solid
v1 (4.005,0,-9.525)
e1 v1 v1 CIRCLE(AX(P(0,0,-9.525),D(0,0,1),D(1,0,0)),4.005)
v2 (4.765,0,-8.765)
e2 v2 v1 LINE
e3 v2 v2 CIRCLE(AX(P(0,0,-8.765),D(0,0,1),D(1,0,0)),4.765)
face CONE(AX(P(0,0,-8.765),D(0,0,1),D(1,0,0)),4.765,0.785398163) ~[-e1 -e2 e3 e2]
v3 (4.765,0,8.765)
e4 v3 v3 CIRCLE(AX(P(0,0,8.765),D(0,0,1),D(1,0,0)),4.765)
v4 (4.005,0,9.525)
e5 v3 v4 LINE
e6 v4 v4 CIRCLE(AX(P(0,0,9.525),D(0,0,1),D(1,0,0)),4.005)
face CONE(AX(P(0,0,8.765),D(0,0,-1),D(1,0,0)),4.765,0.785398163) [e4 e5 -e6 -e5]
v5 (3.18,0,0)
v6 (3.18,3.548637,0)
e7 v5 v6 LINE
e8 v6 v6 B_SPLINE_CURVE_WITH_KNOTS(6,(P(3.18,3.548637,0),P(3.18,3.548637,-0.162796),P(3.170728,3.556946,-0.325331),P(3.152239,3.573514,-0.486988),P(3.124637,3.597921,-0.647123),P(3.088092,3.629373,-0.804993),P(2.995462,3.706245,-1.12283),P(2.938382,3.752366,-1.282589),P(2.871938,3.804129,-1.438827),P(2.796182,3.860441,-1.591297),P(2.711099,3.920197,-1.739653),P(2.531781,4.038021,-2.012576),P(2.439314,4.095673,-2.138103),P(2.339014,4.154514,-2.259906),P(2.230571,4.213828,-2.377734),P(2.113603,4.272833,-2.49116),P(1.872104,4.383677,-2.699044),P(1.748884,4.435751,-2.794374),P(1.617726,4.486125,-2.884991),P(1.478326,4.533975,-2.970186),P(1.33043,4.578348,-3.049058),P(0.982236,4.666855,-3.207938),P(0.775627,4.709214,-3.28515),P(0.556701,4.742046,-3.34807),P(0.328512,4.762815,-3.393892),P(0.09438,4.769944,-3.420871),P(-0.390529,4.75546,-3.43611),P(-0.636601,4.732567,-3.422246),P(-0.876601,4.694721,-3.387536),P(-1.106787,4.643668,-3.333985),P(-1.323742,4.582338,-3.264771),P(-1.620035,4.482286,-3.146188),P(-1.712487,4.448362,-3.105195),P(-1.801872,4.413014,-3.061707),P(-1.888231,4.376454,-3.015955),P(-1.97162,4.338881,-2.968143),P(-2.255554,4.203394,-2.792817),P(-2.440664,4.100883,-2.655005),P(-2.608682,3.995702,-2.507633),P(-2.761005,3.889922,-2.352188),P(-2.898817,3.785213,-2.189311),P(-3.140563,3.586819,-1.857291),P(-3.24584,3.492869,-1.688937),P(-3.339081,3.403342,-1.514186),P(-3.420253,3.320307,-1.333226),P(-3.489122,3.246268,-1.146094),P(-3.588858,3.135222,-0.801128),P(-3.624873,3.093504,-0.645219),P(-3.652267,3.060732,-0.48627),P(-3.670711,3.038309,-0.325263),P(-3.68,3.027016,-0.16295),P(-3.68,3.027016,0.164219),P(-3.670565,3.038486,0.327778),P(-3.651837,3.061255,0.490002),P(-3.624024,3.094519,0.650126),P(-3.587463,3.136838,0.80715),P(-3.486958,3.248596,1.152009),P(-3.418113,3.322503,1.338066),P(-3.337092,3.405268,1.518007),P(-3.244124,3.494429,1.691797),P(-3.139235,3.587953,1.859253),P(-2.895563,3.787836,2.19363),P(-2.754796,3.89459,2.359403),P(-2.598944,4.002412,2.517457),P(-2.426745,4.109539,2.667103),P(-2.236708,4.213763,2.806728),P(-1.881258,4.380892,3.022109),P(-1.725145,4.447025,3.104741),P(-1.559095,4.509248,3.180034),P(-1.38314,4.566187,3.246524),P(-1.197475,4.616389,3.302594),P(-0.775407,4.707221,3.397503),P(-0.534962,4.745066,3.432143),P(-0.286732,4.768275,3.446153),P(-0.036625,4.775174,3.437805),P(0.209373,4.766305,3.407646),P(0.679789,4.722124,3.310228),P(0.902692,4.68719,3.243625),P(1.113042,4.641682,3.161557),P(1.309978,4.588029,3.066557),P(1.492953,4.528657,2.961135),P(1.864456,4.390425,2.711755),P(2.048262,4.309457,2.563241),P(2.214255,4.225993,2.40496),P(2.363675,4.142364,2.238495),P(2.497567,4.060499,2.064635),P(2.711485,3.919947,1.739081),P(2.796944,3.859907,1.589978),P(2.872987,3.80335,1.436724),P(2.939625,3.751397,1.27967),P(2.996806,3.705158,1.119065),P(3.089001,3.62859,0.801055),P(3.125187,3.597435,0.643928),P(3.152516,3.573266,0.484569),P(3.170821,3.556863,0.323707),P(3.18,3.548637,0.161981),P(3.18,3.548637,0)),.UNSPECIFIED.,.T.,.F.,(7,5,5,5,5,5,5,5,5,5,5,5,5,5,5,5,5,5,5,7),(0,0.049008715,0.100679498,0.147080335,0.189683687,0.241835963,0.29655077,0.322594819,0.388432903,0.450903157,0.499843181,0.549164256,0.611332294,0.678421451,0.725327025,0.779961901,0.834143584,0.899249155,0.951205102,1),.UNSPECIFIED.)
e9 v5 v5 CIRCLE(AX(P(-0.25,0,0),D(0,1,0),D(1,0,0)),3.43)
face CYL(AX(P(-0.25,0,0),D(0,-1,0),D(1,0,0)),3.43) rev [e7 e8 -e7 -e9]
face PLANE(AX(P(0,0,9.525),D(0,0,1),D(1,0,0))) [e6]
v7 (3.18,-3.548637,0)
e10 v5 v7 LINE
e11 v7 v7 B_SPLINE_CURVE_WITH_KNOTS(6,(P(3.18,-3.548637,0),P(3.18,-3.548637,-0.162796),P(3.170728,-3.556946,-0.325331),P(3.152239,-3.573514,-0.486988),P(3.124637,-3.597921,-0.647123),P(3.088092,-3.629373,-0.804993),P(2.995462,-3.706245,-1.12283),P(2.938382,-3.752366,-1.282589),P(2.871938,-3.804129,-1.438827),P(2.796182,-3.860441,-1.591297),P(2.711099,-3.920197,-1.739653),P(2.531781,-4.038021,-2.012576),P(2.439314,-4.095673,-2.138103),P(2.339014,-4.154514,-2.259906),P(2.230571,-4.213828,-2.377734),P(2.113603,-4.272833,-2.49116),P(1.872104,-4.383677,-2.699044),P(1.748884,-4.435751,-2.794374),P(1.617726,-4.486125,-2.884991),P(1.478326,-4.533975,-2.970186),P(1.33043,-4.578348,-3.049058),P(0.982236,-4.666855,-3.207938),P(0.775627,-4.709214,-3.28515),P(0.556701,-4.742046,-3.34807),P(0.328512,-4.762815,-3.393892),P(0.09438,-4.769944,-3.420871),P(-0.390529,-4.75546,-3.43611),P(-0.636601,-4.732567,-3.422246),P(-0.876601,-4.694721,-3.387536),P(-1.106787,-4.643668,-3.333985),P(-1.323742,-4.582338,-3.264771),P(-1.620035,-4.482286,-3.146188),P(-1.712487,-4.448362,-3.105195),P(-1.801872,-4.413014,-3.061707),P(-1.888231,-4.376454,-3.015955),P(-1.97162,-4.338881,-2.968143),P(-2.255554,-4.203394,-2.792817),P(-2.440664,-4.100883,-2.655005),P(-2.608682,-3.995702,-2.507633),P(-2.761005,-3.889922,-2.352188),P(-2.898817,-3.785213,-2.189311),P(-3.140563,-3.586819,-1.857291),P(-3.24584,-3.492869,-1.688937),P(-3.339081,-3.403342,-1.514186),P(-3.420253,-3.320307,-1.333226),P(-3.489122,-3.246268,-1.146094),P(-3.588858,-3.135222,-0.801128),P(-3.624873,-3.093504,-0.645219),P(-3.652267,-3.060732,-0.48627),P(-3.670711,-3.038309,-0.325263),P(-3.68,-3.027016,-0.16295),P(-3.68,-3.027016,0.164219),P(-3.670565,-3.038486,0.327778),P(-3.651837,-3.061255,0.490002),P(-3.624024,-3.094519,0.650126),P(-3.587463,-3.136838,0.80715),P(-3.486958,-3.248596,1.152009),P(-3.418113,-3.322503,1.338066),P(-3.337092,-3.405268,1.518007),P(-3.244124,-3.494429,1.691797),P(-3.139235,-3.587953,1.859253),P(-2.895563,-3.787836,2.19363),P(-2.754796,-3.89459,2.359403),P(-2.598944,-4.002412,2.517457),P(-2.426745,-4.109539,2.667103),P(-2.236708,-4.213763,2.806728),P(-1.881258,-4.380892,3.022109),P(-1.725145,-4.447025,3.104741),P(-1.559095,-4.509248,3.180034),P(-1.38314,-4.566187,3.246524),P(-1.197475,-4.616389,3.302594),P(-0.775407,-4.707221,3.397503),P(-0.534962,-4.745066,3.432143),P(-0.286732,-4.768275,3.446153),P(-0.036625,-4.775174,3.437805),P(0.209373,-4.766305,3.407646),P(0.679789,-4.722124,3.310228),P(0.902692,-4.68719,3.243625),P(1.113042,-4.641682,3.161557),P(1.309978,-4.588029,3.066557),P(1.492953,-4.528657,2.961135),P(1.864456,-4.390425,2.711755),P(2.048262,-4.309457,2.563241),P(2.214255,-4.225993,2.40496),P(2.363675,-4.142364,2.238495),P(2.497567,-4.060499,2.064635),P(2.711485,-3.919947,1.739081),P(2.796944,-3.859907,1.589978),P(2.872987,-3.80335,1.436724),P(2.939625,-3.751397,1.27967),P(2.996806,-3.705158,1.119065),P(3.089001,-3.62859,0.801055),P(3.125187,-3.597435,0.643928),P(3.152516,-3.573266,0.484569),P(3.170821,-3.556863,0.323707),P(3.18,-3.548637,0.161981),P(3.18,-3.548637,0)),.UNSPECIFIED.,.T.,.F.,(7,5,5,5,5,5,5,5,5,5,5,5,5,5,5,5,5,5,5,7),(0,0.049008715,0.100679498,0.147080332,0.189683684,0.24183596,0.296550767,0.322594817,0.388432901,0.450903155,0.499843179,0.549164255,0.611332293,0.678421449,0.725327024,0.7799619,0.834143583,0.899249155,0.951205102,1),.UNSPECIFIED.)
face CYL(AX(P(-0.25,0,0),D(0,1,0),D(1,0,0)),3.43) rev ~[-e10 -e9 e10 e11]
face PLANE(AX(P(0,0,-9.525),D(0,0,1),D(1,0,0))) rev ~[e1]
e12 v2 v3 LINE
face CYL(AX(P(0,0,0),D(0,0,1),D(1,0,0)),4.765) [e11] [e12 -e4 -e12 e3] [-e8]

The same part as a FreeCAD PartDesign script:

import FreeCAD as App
import Part
import Sketcher
Q = App.Units.Quantity


def edges_at(feature, points):
    """Names of the edges that pass closest to the given points."""
    edges = feature.Shape.Edges
    near = lambda p: min(range(len(edges)), key=lambda i: edges[i].distToShape(Part.Vertex(*p))[0])
    return sorted({f"Edge{near(p) + 1}" for p in points})

doc = App.newDocument("Part")
body = doc.addObject("PartDesign::Body", "Body")

# Sketch on XY plane
sketch1 = doc.addObject("Sketcher::SketchObject", "Sketch")
body.addObject(sketch1)
sketch1.AttachmentSupport = (doc.XY_Plane, [""])
sketch1.MapMode = "FlatFace"
sketch1.addGeometry(Part.Circle(App.Vector(0, 0, 0), App.Vector(0, 0, 1), 4.8), False)
sketch1.addConstraint([
    Sketcher.Constraint("Coincident", 0, 3, -1, 1),
    Sketcher.Constraint("Diameter", 0, Q("9.53 mm")),
])
pad1 = doc.addObject("PartDesign::Pad", "Pad")
body.addObject(pad1)
pad1.Profile = sketch1
pad1.Length = Q("0.75 in")
pad1.Midplane = True
doc.recompute()

chamfer = doc.addObject("PartDesign::Chamfer", "Chamfer")
body.addObject(chamfer)
chamfer.Base = (pad1, edges_at(pad1, [(-4.765, 0, -9.525), (-4.765, 0, 9.525)]))
chamfer.Size = 0.76

# Sketch on XZ plane
sketch2 = doc.addObject("Sketcher::SketchObject", "Sketch001")
body.addObject(sketch2)
sketch2.AttachmentSupport = (doc.XZ_Plane, [""])
sketch2.MapMode = "FlatFace"
sketch2.addGeometry(Part.Circle(App.Vector(-0.2, 0, 0), App.Vector(0, 0, 1), 3.4), False)
sketch2.addConstraint([
    Sketcher.Constraint("PointOnObject", 0, 3, -1),
    Sketcher.Constraint("Diameter", 0, Q("6.86 mm")),
    Sketcher.Constraint("DistanceX", 0, 3, -1, 1, Q("0.25 mm")),
])
pocket1 = doc.addObject("PartDesign::Pocket", "Pocket")
body.addObject(pocket1)
pocket1.Profile = sketch2
pocket1.Type = "ThroughAll"
pocket1.Midplane = True

doc.recompute()
